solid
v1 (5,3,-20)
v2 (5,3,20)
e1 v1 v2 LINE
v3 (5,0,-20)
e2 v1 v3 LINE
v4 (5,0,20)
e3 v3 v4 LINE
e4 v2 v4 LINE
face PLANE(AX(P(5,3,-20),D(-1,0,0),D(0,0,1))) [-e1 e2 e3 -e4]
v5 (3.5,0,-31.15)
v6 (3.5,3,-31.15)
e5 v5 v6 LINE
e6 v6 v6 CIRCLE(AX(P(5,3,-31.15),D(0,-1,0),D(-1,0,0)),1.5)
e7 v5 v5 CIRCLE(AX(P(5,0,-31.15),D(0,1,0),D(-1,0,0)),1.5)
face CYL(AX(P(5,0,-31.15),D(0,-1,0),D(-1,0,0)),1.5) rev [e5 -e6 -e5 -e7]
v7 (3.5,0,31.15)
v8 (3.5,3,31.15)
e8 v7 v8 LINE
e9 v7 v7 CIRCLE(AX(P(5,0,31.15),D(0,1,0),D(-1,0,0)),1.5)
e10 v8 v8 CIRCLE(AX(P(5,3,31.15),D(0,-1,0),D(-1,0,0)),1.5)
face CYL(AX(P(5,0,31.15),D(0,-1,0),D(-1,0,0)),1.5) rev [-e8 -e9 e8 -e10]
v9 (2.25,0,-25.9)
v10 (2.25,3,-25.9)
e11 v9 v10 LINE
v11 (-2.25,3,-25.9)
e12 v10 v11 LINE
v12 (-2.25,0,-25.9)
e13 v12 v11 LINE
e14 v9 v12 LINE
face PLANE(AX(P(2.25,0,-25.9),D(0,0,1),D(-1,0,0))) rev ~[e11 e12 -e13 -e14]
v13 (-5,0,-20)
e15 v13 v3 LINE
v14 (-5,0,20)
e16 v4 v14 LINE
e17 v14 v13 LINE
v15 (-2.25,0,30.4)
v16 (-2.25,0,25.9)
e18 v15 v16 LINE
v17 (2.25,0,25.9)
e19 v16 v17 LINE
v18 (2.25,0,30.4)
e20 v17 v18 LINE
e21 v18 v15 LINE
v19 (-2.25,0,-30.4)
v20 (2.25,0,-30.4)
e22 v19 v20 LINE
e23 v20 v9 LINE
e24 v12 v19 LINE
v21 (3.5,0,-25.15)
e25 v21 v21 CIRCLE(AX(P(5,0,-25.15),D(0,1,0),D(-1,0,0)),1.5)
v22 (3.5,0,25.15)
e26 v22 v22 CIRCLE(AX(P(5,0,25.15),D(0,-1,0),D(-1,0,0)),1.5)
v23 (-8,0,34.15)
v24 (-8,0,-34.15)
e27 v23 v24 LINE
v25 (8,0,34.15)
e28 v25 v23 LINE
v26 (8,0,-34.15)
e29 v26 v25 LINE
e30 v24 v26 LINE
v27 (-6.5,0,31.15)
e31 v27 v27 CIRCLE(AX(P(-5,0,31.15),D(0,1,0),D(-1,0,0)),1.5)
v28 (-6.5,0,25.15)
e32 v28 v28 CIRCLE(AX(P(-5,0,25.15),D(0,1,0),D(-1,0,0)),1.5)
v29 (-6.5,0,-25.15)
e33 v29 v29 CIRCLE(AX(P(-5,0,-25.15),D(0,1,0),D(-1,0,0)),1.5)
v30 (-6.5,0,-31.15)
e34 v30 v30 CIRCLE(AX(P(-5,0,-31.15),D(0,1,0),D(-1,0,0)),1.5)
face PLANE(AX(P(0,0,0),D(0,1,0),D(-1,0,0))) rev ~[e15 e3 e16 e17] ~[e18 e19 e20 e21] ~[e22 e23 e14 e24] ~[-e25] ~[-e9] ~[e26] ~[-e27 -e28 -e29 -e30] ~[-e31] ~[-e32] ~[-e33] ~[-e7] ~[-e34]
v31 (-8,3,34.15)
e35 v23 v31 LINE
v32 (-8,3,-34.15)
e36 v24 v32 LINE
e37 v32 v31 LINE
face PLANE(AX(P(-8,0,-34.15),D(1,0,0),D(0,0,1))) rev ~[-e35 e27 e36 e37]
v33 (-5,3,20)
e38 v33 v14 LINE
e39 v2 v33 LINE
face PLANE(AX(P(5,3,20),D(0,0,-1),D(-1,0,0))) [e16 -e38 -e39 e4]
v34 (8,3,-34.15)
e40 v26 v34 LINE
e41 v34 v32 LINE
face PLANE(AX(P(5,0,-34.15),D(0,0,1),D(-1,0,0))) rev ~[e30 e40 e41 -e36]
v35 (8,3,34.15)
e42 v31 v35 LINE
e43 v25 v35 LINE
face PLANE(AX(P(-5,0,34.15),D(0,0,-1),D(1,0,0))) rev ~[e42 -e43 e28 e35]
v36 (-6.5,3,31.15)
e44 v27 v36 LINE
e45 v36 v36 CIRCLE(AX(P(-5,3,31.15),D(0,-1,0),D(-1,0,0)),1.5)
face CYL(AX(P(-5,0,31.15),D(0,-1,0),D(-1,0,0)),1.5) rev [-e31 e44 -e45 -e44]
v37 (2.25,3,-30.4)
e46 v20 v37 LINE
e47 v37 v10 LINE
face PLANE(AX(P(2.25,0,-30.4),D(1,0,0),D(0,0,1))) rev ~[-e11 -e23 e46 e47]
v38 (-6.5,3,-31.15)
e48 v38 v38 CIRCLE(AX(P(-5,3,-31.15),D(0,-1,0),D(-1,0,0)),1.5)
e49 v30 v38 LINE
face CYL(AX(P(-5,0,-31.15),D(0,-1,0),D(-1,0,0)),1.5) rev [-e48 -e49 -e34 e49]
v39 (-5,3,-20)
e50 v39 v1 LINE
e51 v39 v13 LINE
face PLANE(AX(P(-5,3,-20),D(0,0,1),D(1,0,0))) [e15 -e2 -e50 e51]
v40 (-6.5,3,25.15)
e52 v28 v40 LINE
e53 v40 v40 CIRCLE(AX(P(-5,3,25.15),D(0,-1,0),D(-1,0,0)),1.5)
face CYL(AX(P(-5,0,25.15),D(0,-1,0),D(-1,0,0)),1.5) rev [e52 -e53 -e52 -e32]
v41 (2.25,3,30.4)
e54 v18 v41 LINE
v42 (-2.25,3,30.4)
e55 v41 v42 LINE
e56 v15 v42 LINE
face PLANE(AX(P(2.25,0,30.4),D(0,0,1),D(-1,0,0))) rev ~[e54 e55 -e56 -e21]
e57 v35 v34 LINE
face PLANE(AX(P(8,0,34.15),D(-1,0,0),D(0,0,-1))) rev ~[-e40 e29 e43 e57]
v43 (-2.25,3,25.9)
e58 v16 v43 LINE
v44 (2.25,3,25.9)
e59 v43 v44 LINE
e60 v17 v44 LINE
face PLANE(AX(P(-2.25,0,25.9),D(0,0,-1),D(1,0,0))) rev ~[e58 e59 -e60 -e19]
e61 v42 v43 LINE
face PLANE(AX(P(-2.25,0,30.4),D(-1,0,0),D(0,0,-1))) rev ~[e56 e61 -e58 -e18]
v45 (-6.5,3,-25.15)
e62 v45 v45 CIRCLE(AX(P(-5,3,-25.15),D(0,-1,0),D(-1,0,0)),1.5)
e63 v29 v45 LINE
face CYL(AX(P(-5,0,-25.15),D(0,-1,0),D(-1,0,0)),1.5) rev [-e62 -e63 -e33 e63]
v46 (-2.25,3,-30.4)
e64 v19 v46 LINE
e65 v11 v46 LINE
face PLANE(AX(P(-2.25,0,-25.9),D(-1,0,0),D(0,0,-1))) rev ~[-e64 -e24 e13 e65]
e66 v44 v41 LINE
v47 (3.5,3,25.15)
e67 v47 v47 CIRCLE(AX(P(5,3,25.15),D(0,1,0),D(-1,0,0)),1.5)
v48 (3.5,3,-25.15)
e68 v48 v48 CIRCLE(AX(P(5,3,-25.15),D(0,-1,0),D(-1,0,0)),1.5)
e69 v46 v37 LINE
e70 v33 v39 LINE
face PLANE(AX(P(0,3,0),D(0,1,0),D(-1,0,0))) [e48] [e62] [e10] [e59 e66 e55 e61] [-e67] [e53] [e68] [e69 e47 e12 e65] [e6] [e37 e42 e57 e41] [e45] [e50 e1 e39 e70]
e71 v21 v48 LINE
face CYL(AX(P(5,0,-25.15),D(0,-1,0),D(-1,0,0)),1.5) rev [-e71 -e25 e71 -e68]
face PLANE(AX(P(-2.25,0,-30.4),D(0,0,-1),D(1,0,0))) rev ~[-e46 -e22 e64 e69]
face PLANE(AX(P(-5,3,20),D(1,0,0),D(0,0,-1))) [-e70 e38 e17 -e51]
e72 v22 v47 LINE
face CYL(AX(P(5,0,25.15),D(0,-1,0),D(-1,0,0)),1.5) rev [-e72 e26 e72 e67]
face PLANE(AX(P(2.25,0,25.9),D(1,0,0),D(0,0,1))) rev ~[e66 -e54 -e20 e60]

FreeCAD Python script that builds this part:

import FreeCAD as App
import Part
import Sketcher
Q = App.Units.Quantity

doc = App.newDocument("Part")
body = doc.addObject("PartDesign::Body", "Body")

sketch1 = body.newObject("Sketcher::SketchObject", "Sketch")
sketch1.AttachmentSupport = (doc.getObject("XZ_Plane"), [""])
sketch1.MapMode = "FlatFace"
sketch1.addGeometry([
    Part.LineSegment(App.Vector(8, 34.15, 0), App.Vector(8, -34.15, 0)),
    Part.LineSegment(App.Vector(8, -34.15, 0), App.Vector(-8, -34.15, 0)),
    Part.LineSegment(App.Vector(-8, -34.15, 0), App.Vector(-8, 34.15, 0)),
    Part.LineSegment(App.Vector(-8, 34.15, 0), App.Vector(8, 34.15, 0)),
    Part.Circle(App.Vector(5, 25.15, 0), App.Vector(0, 0, 1), 1.5),
    Part.Circle(App.Vector(5, 31.15, 0), App.Vector(0, 0, 1), 1.5),
    Part.Circle(App.Vector(-5, 31.15, 0), App.Vector(0, 0, 1), 1.5),
    Part.Circle(App.Vector(-5, 25.15, 0), App.Vector(0, 0, 1), 1.5),
    Part.LineSegment(App.Vector(2.25, 25.9, 0), App.Vector(2.25, 30.4, 0)),
    Part.LineSegment(App.Vector(2.25, 30.4, 0), App.Vector(-2.25, 30.4, 0)),
    Part.LineSegment(App.Vector(-2.25, 30.4, 0), App.Vector(-2.25, 25.9, 0)),
    Part.LineSegment(App.Vector(-2.25, 25.9, 0), App.Vector(2.25, 25.9, 0)),
    Part.Circle(App.Vector(5, -25.15, 0), App.Vector(0, 0, 1), 1.5),
    Part.Circle(App.Vector(5, -31.15, 0), App.Vector(0, 0, 1), 1.5),
    Part.Circle(App.Vector(-5, -31.15, 0), App.Vector(0, 0, 1), 1.5),
    Part.Circle(App.Vector(-5, -25.15, 0), App.Vector(0, 0, 1), 1.5),
    Part.LineSegment(App.Vector(2.25, -30.4, 0), App.Vector(2.25, -25.9, 0)),
    Part.LineSegment(App.Vector(2.25, -25.9, 0), App.Vector(-2.25, -25.9, 0)),
    Part.LineSegment(App.Vector(-2.25, -25.9, 0), App.Vector(-2.25, -30.4, 0)),
    Part.LineSegment(App.Vector(-2.25, -30.4, 0), App.Vector(2.25, -30.4, 0)),
], False)
sketch1.addConstraint([
    Sketcher.Constraint("Coincident", 0, 2, 1, 1),
    Sketcher.Constraint("Coincident", 1, 2, 2, 1),
    Sketcher.Constraint("Coincident", 2, 2, 3, 1),
    Sketcher.Constraint("Coincident", 3, 2, 0, 1),
    Sketcher.Constraint("Coincident", 8, 2, 9, 1),
    Sketcher.Constraint("Coincident", 9, 2, 10, 1),
    Sketcher.Constraint("Coincident", 10, 2, 11, 1),
    Sketcher.Constraint("Coincident", 11, 2, 8, 1),
    Sketcher.Constraint("Coincident", 16, 2, 17, 1),
    Sketcher.Constraint("Coincident", 17, 2, 18, 1),
    Sketcher.Constraint("Coincident", 18, 2, 19, 1),
    Sketcher.Constraint("Coincident", 19, 2, 16, 1),
    Sketcher.Constraint("Vertical", 0),
    Sketcher.Constraint("Horizontal", 1),
    Sketcher.Constraint("Vertical", 2),
    Sketcher.Constraint("Horizontal", 3),
    Sketcher.Constraint("Vertical", 8),
    Sketcher.Constraint("Horizontal", 9),
    Sketcher.Constraint("Vertical", 10),
    Sketcher.Constraint("Horizontal", 11),
    Sketcher.Constraint("Vertical", 16),
    Sketcher.Constraint("Horizontal", 17),
    Sketcher.Constraint("Vertical", 18),
    Sketcher.Constraint("Horizontal", 19),
    Sketcher.Constraint("Equal", 4, 5),
    Sketcher.Constraint("Equal", 5, 6),
    Sketcher.Constraint("Equal", 6, 7),
    Sketcher.Constraint("Equal", 7, 12),
    Sketcher.Constraint("Equal", 12, 13),
    Sketcher.Constraint("Equal", 13, 14),
    Sketcher.Constraint("Equal", 14, 15),
    Sketcher.Constraint("Symmetric", 7, 3, 12, 3, -1, 1),
    Sketcher.Constraint("Symmetric", 6, 3, 13, 3, -1, 1),
    Sketcher.Constraint("Symmetric", 5, 3, 14, 3, -1, 1),
    Sketcher.Constraint("Symmetric", 4, 3, 15, 3, -1, 1),
    Sketcher.Constraint("Symmetric", 0, 2, 2, 2, -1, 1),
    Sketcher.Constraint("Symmetric", 10, 2, 16, 2, -1, 1),
    Sketcher.Constraint("Symmetric", 8, 2, 18, 2, -1, 1),
    Sketcher.Constraint("Symmetric", 5, 3, 6, 3, -2),
    Sketcher.Constraint("Symmetric", 4, 3, 7, 3, -2),
    Sketcher.Constraint("Vertical", 4, 3, 5, 3),
    Sketcher.Constraint("Vertical", 11, 2, 16, 2),
    Sketcher.Constraint("Equal", 19, 8),
    Sketcher.Constraint("Diameter", 4, Q("3 mm")),
    Sketcher.Constraint("DistanceX", 9, 2, 9, 1, Q("4.5 mm")),
    Sketcher.Constraint("DistanceY", 4, 3, 5, 3, Q("6 mm")),
    Sketcher.Constraint("DistanceX", 6, 3, 5, 3, Q("10 mm")),
    Sketcher.Constraint("DistanceX", 13, 3, 0, 2, Q("3 mm")),
    Sketcher.Constraint("DistanceY", 0, 2, 13, 3, Q("3 mm")),
    Sketcher.Constraint("DistanceY", 12, 3, 4, 3, Q("50.3 mm")),
    Sketcher.Constraint("DistanceY", -1, 1, 8, 2, Q("30.4 mm")),
])
pad1 = body.newObject("PartDesign::Pad", "Pad")
pad1.Profile = sketch1
pad1.Length = 3
pad1.Reversed = True

sketch2 = body.newObject("Sketcher::SketchObject", "Sketch001")
sketch2.AttachmentSupport = (doc.getObject("XZ_Plane"), [""])
sketch2.MapMode = "FlatFace"
sketch2.AttachmentOffset = App.Placement(App.Vector(0, 0, -3), App.Rotation())
sketch2.addGeometry([
    Part.LineSegment(App.Vector(-5, 20, 0), App.Vector(5, 20, 0)),
    Part.LineSegment(App.Vector(5, 20, 0), App.Vector(5, -20, 0)),
    Part.LineSegment(App.Vector(5, -20, 0), App.Vector(-5, -20, 0)),
    Part.LineSegment(App.Vector(-5, -20, 0), App.Vector(-5, 20, 0)),
], False)
sketch2.addConstraint([
    Sketcher.Constraint("Coincident", 0, 2, 1, 1),
    Sketcher.Constraint("Coincident", 1, 2, 2, 1),
    Sketcher.Constraint("Coincident", 2, 2, 3, 1),
    Sketcher.Constraint("Coincident", 3, 2, 0, 1),
    Sketcher.Constraint("Horizontal", 0),
    Sketcher.Constraint("Vertical", 1),
    Sketcher.Constraint("Horizontal", 2),
    Sketcher.Constraint("Vertical", 3),
    Sketcher.Constraint("Symmetric", 0, 2, 2, 2, -1, 1),
    Sketcher.Constraint("DistanceX", 0, 1, 0, 2, Q("10 mm")),
    Sketcher.Constraint("DistanceY", 1, 2, 1, 1, Q("40 mm")),
])
pocket1 = body.newObject("PartDesign::Pocket", "Pocket")
pocket1.Profile = sketch2
pocket1.Length = 3
pocket1.Reversed = True

doc.recompute()
